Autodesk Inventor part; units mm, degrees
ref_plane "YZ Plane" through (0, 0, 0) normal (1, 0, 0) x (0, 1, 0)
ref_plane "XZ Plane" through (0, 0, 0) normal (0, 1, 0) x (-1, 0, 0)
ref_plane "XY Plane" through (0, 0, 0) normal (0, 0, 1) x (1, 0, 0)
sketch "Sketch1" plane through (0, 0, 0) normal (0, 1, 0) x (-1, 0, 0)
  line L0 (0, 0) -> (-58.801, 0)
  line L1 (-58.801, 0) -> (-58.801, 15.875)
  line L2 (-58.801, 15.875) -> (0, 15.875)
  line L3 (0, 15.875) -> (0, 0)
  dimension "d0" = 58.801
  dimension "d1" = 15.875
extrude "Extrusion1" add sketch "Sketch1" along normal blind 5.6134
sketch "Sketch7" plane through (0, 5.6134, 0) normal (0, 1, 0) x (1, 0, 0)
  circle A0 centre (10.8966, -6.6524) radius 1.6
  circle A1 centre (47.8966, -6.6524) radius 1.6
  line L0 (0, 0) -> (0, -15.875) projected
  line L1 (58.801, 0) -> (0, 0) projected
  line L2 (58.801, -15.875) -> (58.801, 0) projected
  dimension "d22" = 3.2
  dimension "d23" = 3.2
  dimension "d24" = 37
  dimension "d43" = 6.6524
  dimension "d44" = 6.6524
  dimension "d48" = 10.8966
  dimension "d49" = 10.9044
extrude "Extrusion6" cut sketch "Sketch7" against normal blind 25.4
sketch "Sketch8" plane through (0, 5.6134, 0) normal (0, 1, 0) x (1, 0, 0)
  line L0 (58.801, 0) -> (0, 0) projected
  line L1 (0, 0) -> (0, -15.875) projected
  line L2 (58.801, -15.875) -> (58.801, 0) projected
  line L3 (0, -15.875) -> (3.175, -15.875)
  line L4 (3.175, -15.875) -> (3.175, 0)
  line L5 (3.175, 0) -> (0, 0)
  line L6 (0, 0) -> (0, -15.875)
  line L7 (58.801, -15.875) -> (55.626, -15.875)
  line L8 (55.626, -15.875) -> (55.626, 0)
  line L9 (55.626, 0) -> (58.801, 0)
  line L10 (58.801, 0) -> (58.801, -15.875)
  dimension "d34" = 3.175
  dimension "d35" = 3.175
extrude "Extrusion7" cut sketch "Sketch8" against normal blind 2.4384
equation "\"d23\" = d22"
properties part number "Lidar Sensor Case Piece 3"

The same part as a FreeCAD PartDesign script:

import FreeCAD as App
import Part
import Sketcher
from FreeCAD import Vector
Q = App.Units.Quantity

doc = App.newDocument("Part")
body = doc.addObject("PartDesign::Body", "Body")

# Sketch on XZ plane
sketch1 = doc.addObject("Sketcher::SketchObject", "Sketch")
body.addObject(sketch1)
sketch1.AttachmentSupport = (doc.XZ_Plane, [""])
sketch1.MapMode = "FlatFace"
sketch1.addGeometry(Part.LineSegment(Vector(59, 0, 0), Vector(0, 0, 0)), False)
sketch1.addGeometry(Part.LineSegment(Vector(0, 0, 0), Vector(0, 16, 0)), False)
sketch1.addGeometry(Part.LineSegment(Vector(0, 16, 0), Vector(59, 16, 0)), False)
sketch1.addGeometry(Part.LineSegment(Vector(59, 16, 0), Vector(59, 0, 0)), False)
sketch1.addConstraint(Sketcher.Constraint("Coincident", 0, 2, 1, 1))
sketch1.addConstraint(Sketcher.Constraint("Coincident", 1, 2, 2, 1))
sketch1.addConstraint(Sketcher.Constraint("Coincident", 2, 2, 3, 1))
sketch1.addConstraint(Sketcher.Constraint("Coincident", 3, 2, 0, 1))
sketch1.addConstraint(Sketcher.Constraint("Horizontal", 0))
sketch1.addConstraint(Sketcher.Constraint("Vertical", 1))
sketch1.addConstraint(Sketcher.Constraint("Horizontal", 2))
sketch1.addConstraint(Sketcher.Constraint("Vertical", 3))
sketch1.addConstraint(Sketcher.Constraint("Coincident", 0, 2, -1, 1))
sketch1.addConstraint(Sketcher.Constraint("DistanceX", 0, 2, 0, 1, Q("2.315 in")))
sketch1.addConstraint(Sketcher.Constraint("DistanceY", 1, 1, 1, 2, Q("0.625 in")))
pad1 = doc.addObject("PartDesign::Pad", "Pad")
body.addObject(pad1)
pad1.Profile = sketch1
pad1.Length = Q("0.221 in")
pad1.Reversed = True

# Sketch on XZ plane
sketch2 = doc.addObject("Sketcher::SketchObject", "Sketch001")
body.addObject(sketch2)
sketch2.AttachmentSupport = (doc.XZ_Plane, [""])
sketch2.MapMode = "FlatFace"
sketch2.AttachmentOffset = App.Placement(Vector(0, 0, -0.221 * 25.4), App.Rotation())
sketch2.addGeometry(Part.Circle(Vector(10.9, 6.7, 0), Vector(0, 0, 1), 1.6), False)
sketch2.addGeometry(Part.Circle(Vector(47.9, 6.7, 0), Vector(0, 0, 1), 1.6), False)
sketch2.addConstraint(Sketcher.Constraint("Equal", 0, 1))
sketch2.addConstraint(Sketcher.Constraint("Horizontal", 0, 3, 1, 3))
sketch2.addConstraint(Sketcher.Constraint("Diameter", 0, Q("3.2 mm")))
sketch2.addConstraint(Sketcher.Constraint("DistanceX", -1, 1, 0, 3, Q("0.429 in")))
sketch2.addConstraint(Sketcher.Constraint("DistanceY", -1, 1, 0, 3, Q("0.2619 in")))
sketch2.addConstraint(Sketcher.Constraint("DistanceX", 0, 3, 1, 3, Q("1.4567 in")))
pocket1 = doc.addObject("PartDesign::Pocket", "Pocket")
body.addObject(pocket1)
pocket1.Profile = sketch2
pocket1.Length = Q("1 in")
pocket1.Reversed = True

# Sketch on XZ plane
sketch3 = doc.addObject("Sketcher::SketchObject", "Sketch002")
body.addObject(sketch3)
sketch3.AttachmentSupport = (doc.XZ_Plane, [""])
sketch3.MapMode = "FlatFace"
sketch3.AttachmentOffset = App.Placement(Vector(0, 0, -0.221 * 25.4), App.Rotation())
sketch3.addGeometry(Part.LineSegment(Vector(58.8, 15.9, 0), Vector(58.8, 0, 0)), False)
sketch3.addGeometry(Part.LineSegment(Vector(58.8, 0, 0), Vector(55.6, 0, 0)), False)
sketch3.addGeometry(Part.LineSegment(Vector(55.6, 0, 0), Vector(55.6, 15.9, 0)), False)
sketch3.addGeometry(Part.LineSegment(Vector(55.6, 15.9, 0), Vector(58.8, 15.9, 0)), False)
sketch3.addGeometry(Part.LineSegment(Vector(3.2, 15.9, 0), Vector(3.2, 0, 0)), False)
sketch3.addGeometry(Part.LineSegment(Vector(3.2, 0, 0), Vector(0, 0, 0)), False)
sketch3.addGeometry(Part.LineSegment(Vector(0, 0, 0), Vector(0, 15.9, 0)), False)
sketch3.addGeometry(Part.LineSegment(Vector(0, 15.9, 0), Vector(3.2, 15.9, 0)), False)
sketch3.addConstraint(Sketcher.Constraint("Coincident", 0, 2, 1, 1))
sketch3.addConstraint(Sketcher.Constraint("Coincident", 1, 2, 2, 1))
sketch3.addConstraint(Sketcher.Constraint("Coincident", 2, 2, 3, 1))
sketch3.addConstraint(Sketcher.Constraint("Coincident", 3, 2, 0, 1))
sketch3.addConstraint(Sketcher.Constraint("Coincident", 4, 2, 5, 1))
sketch3.addConstraint(Sketcher.Constraint("Coincident", 5, 2, 6, 1))
sketch3.addConstraint(Sketcher.Constraint("Coincident", 6, 2, 7, 1))
sketch3.addConstraint(Sketcher.Constraint("Coincident", 7, 2, 4, 1))
sketch3.addConstraint(Sketcher.Constraint("Vertical", 0))
sketch3.addConstraint(Sketcher.Constraint("Horizontal", 1))
sketch3.addConstraint(Sketcher.Constraint("Vertical", 2))
sketch3.addConstraint(Sketcher.Constraint("Horizontal", 3))
sketch3.addConstraint(Sketcher.Constraint("Vertical", 4))
sketch3.addConstraint(Sketcher.Constraint("Horizontal", 5))
sketch3.addConstraint(Sketcher.Constraint("Vertical", 6))
sketch3.addConstraint(Sketcher.Constraint("Horizontal", 7))
sketch3.addConstraint(Sketcher.Constraint("Coincident", 5, 2, -1, 1))
sketch3.addConstraint(Sketcher.Constraint("PointOnObject", 0, 2, -1))
sketch3.addConstraint(Sketcher.Constraint("Horizontal", 3, 2, 6, 2))
sketch3.addConstraint(Sketcher.Constraint("Equal", 3, 5))
sketch3.addConstraint(Sketcher.Constraint("DistanceX", 1, 2, 1, 1, Q("0.125 in")))
sketch3.addConstraint(Sketcher.Constraint("DistanceY", 0, 2, 0, 1, Q("0.625 in")))
sketch3.addConstraint(Sketcher.Constraint("DistanceX", -1, 1, 1, 2, Q("2.19 in")))
pocket2 = doc.addObject("PartDesign::Pocket", "Pocket001")
body.addObject(pocket2)
pocket2.Profile = sketch3
pocket2.Length = Q("0.096 in")
pocket2.Reversed = True

doc.recompute()
